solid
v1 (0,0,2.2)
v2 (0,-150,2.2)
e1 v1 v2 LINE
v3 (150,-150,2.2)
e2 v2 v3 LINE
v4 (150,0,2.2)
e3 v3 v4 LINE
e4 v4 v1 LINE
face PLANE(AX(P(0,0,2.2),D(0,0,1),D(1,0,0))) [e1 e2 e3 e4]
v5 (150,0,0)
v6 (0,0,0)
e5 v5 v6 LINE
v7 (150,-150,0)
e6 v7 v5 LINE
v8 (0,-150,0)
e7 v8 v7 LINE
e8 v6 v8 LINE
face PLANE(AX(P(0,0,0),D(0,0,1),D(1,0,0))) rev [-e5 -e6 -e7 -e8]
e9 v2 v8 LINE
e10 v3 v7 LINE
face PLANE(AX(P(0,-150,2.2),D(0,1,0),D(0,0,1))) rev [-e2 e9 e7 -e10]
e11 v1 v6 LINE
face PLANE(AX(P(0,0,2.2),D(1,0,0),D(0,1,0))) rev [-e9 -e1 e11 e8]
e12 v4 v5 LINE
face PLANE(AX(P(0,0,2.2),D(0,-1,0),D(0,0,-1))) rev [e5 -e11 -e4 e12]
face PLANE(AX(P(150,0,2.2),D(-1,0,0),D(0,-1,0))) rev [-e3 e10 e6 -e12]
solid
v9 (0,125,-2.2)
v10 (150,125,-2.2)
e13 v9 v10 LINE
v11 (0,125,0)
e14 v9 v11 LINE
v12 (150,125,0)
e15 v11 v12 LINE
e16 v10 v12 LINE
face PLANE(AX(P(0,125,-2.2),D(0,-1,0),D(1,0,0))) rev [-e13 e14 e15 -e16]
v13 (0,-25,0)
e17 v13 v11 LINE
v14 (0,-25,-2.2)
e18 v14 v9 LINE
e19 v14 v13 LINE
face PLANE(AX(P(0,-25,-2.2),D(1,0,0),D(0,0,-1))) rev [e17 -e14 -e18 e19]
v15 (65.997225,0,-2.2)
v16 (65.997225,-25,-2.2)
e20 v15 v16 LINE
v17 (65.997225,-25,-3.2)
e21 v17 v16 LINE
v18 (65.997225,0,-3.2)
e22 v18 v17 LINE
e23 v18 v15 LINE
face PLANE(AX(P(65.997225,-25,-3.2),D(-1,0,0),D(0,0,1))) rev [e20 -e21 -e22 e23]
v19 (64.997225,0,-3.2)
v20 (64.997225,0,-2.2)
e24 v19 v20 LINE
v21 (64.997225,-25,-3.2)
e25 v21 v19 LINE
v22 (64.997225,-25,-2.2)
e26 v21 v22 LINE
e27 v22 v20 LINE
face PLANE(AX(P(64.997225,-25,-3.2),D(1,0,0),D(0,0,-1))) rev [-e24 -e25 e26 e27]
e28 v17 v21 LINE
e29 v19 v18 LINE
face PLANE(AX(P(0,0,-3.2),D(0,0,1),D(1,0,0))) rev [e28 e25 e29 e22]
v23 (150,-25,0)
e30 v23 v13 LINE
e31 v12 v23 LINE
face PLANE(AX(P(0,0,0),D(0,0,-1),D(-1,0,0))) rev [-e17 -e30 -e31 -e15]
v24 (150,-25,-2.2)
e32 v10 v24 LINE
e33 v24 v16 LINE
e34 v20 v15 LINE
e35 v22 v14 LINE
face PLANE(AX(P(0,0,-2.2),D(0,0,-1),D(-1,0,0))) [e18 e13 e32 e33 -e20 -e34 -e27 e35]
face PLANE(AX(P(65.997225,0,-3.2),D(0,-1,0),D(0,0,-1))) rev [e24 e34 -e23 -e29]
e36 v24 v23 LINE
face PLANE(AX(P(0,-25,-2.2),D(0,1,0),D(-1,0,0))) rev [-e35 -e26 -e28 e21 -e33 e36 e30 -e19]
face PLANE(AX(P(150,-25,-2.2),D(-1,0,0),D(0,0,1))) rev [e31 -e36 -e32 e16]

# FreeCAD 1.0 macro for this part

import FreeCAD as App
import Part
import Sketcher
Q = App.Units.Quantity

doc = App.newDocument("Part")
params = doc.addObject("Spreadsheet::Sheet", "Params")
for row, (alias, value) in enumerate([
    ("sketch1_width", "150 mm"),
    ("pad1_length", "2.2 mm"),
    ("sketch2_width", "150 mm"),
    ("pad2_length", "2.2 mm"),
    ("sketch3_width", "1 mm"),
    ("sketch3_height", "25 mm"),
    ("pad3_length", "1 mm"),
], start=1):
    params.set(f"A{row}", alias)
    params.set(f"B{row}", "=" + value)
    params.setAlias(f"B{row}", alias)

body = doc.addObject("PartDesign::Body", "Body")

sketch1 = doc.addObject("Sketcher::SketchObject", "Sketch")
body.addObject(sketch1)
sketch1.AttachmentSupport = (doc.XY_Plane, [""])
sketch1.MapMode = "FlatFace"
sketch1.addGeometry(Part.LineSegment(App.Vector(0, 0, 0), App.Vector(0, -150, 0)), False)
sketch1.addGeometry(Part.LineSegment(App.Vector(0, -150, 0), App.Vector(150, -150, 0)), False)
sketch1.addGeometry(Part.LineSegment(App.Vector(150, -150, 0), App.Vector(150, 0, 0)), False)
sketch1.addGeometry(Part.LineSegment(App.Vector(150, 0, 0), App.Vector(0, 0, 0)), False)
sketch1.addConstraint(Sketcher.Constraint("Coincident", 0, 2, 1, 1))
sketch1.addConstraint(Sketcher.Constraint("Coincident", 1, 2, 2, 1))
sketch1.addConstraint(Sketcher.Constraint("Coincident", 2, 2, 3, 1))
sketch1.addConstraint(Sketcher.Constraint("Coincident", 3, 2, 0, 1))
sketch1.addConstraint(Sketcher.Constraint("Vertical", 0))
sketch1.addConstraint(Sketcher.Constraint("Horizontal", 1))
sketch1.addConstraint(Sketcher.Constraint("Vertical", 2))
sketch1.addConstraint(Sketcher.Constraint("Horizontal", 3))
sketch1.addConstraint(Sketcher.Constraint("Coincident", 3, 2, -1, 1))
sketch1.addConstraint(Sketcher.Constraint("Equal", 3, 0))
sketch1.addConstraint(Sketcher.Constraint("DistanceX", 1, 1, 1, 2, Q("150 mm")))
sketch1.setExpression("Constraints[10]", "Params.sketch1_width")
pad1 = doc.addObject("PartDesign::Pad", "Pad")
body.addObject(pad1)
pad1.Profile = sketch1
pad1.setExpression("Length", "Params.pad1_length")
body2 = doc.addObject("PartDesign::Body", "Body001")

sketch2 = doc.addObject("Sketcher::SketchObject", "Sketch001")
body2.addObject(sketch2)
sketch2.AttachmentSupport = (doc.getObject("XY_Plane001"), [""])
sketch2.MapMode = "FlatFace"
sketch2.addGeometry(Part.LineSegment(App.Vector(150, 125, 0), App.Vector(150, -25, 0)), False)
sketch2.addGeometry(Part.LineSegment(App.Vector(150, -25, 0), App.Vector(0, -25, 0)), False)
sketch2.addGeometry(Part.LineSegment(App.Vector(0, -25, 0), App.Vector(0, 125, 0)), False)
sketch2.addGeometry(Part.LineSegment(App.Vector(0, 125, 0), App.Vector(150, 125, 0)), False)
sketch2.addConstraint(Sketcher.Constraint("Coincident", 0, 2, 1, 1))
sketch2.addConstraint(Sketcher.Constraint("Coincident", 1, 2, 2, 1))
sketch2.addConstraint(Sketcher.Constraint("Coincident", 2, 2, 3, 1))
sketch2.addConstraint(Sketcher.Constraint("Coincident", 3, 2, 0, 1))
sketch2.addConstraint(Sketcher.Constraint("Vertical", 0))
sketch2.addConstraint(Sketcher.Constraint("Horizontal", 1))
sketch2.addConstraint(Sketcher.Constraint("Vertical", 2))
sketch2.addConstraint(Sketcher.Constraint("Horizontal", 3))
sketch2.addConstraint(Sketcher.Constraint("PointOnObject", 1, 2, -2))
sketch2.addConstraint(Sketcher.Constraint("Equal", 3, 0))
sketch2.addConstraint(Sketcher.Constraint("DistanceX", 1, 2, 1, 1, Q("150 mm")))
sketch2.addConstraint(Sketcher.Constraint("DistanceY", 0, 2, -1, 1, Q("25 mm")))
sketch2.setExpression("Constraints[10]", "Params.sketch2_width")
pad2 = doc.addObject("PartDesign::Pad", "Pad001")
body2.addObject(pad2)
pad2.Profile = sketch2
pad2.setExpression("Length", "Params.pad2_length")
pad2.Reversed = True

sketch3 = doc.addObject("Sketcher::SketchObject", "Sketch002")
body2.addObject(sketch3)
sketch3.AttachmentSupport = (doc.getObject("XY_Plane001"), [""])
sketch3.MapMode = "FlatFace"
sketch3.AttachmentOffset = App.Placement(App.Vector(0, 0, -2.2), App.Rotation())
sketch3.addGeometry(Part.LineSegment(App.Vector(66, 0, 0), App.Vector(66, -25, 0)), False)
sketch3.addGeometry(Part.LineSegment(App.Vector(66, -25, 0), App.Vector(65, -25, 0)), False)
sketch3.addGeometry(Part.LineSegment(App.Vector(65, -25, 0), App.Vector(65, 0, 0)), False)
sketch3.addGeometry(Part.LineSegment(App.Vector(65, 0, 0), App.Vector(66, 0, 0)), False)
sketch3.addConstraint(Sketcher.Constraint("Coincident", 0, 2, 1, 1))
sketch3.addConstraint(Sketcher.Constraint("Coincident", 1, 2, 2, 1))
sketch3.addConstraint(Sketcher.Constraint("Coincident", 2, 2, 3, 1))
sketch3.addConstraint(Sketcher.Constraint("Coincident", 3, 2, 0, 1))
sketch3.addConstraint(Sketcher.Constraint("Vertical", 0))
sketch3.addConstraint(Sketcher.Constraint("Horizontal", 1))
sketch3.addConstraint(Sketcher.Constraint("Vertical", 2))
sketch3.addConstraint(Sketcher.Constraint("Horizontal", 3))
sketch3.addConstraint(Sketcher.Constraint("PointOnObject", 2, 2, -1))
sketch3.addConstraint(Sketcher.Constraint("DistanceX", 1, 2, 1, 1, Q("1 mm")))
sketch3.addConstraint(Sketcher.Constraint("DistanceY", 0, 2, 0, 1, Q("25 mm")))
sketch3.addConstraint(Sketcher.Constraint("DistanceX", -1, 1, 0, 2, Q("65.997225 mm")))
sketch3.setExpression("Constraints[9]", "Params.sketch3_width")
sketch3.setExpression("Constraints[10]", "Params.sketch3_height")
pad3 = doc.addObject("PartDesign::Pad", "Pad002")
body2.addObject(pad3)
pad3.Profile = sketch3
pad3.setExpression("Length", "Params.pad3_length")
pad3.Reversed = True

doc.recompute()
